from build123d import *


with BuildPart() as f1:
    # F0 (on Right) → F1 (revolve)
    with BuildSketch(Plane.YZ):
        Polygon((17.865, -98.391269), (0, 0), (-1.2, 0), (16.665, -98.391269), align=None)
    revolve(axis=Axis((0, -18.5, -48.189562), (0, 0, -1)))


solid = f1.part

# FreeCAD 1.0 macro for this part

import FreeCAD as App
import Part
import Sketcher


def add_polygon(sketch, points):
    """Adds a closed chain of lines whose ends are joined by coincident constraints."""
    first, n = sketch.GeometryCount, len(points)
    for a, b in zip(points, points[1:] + points[:1]):
        sketch.addGeometry(Part.LineSegment(App.Vector(*a, 0), App.Vector(*b, 0)), False)
    for i in range(n):
        sketch.addConstraint(Sketcher.Constraint("Coincident", first + i, 2, first + (i + 1) % n, 1))

doc = App.newDocument("Part")
params = doc.addObject("Spreadsheet::Sheet", "Params")
for row, (alias, value) in enumerate([
    ("sketch1_length", "100 mm"),
    ("sketch1_width", "1.2 mm"),
    ("revolution_angle", "360 deg"),
], start=1):
    params.set(f"A{row}", alias)
    params.set(f"B{row}", "=" + value)
    params.setAlias(f"B{row}", alias)

body = doc.addObject("PartDesign::Body", "Body")

# Sketch on YZ plane
sketch1 = body.newObject("Sketcher::SketchObject", "Sketch")
sketch1.AttachmentSupport = (doc.getObject("YZ_Plane"), [""])
sketch1.MapMode = "FlatFace"
add_polygon(sketch1, [(17.9, -98.4), (0, 0), (-1.2, 0), (16.7, -98.4)])  # lines 0-3
sketch1.addGeometry(Part.LineSegment(App.Vector(-18.5, 0, 0), App.Vector(-18.5, -98.4, 0)), True)  # axis
sketch1.addConstraint([
    Sketcher.Constraint("Horizontal", 1),
    Sketcher.Constraint("Horizontal", 3),
    Sketcher.Constraint("Vertical", 4),
    Sketcher.Constraint("Coincident", 0, 2, -1, 1),
    Sketcher.Constraint("PointOnObject", 4, 1, -1),
    Sketcher.Constraint("Parallel", 0, 2),
    Sketcher.Constraint("Horizontal", 3, 2, 4, 2),
    Sketcher.Constraint("Distance", 0, 100.0),
    Sketcher.Constraint("DistanceX", 1, 2, 1, 1, 1.2),
    Sketcher.Constraint("DistanceX", 4, 1, -1, 1, 18.5),
    Sketcher.Constraint("DistanceX", -1, 1, 2, 2, 16.665),
])
sketch1.setExpression("Constraints[11]", "Params.sketch1_length")
sketch1.setExpression("Constraints[12]", "Params.sketch1_width")
revolution = body.newObject("PartDesign::Revolution", "Revolution")
revolution.Profile = sketch1
revolution.ReferenceAxis = (sketch1, ["Axis0"])
revolution.setExpression("Angle", "Params.revolution_angle")

doc.recompute()
